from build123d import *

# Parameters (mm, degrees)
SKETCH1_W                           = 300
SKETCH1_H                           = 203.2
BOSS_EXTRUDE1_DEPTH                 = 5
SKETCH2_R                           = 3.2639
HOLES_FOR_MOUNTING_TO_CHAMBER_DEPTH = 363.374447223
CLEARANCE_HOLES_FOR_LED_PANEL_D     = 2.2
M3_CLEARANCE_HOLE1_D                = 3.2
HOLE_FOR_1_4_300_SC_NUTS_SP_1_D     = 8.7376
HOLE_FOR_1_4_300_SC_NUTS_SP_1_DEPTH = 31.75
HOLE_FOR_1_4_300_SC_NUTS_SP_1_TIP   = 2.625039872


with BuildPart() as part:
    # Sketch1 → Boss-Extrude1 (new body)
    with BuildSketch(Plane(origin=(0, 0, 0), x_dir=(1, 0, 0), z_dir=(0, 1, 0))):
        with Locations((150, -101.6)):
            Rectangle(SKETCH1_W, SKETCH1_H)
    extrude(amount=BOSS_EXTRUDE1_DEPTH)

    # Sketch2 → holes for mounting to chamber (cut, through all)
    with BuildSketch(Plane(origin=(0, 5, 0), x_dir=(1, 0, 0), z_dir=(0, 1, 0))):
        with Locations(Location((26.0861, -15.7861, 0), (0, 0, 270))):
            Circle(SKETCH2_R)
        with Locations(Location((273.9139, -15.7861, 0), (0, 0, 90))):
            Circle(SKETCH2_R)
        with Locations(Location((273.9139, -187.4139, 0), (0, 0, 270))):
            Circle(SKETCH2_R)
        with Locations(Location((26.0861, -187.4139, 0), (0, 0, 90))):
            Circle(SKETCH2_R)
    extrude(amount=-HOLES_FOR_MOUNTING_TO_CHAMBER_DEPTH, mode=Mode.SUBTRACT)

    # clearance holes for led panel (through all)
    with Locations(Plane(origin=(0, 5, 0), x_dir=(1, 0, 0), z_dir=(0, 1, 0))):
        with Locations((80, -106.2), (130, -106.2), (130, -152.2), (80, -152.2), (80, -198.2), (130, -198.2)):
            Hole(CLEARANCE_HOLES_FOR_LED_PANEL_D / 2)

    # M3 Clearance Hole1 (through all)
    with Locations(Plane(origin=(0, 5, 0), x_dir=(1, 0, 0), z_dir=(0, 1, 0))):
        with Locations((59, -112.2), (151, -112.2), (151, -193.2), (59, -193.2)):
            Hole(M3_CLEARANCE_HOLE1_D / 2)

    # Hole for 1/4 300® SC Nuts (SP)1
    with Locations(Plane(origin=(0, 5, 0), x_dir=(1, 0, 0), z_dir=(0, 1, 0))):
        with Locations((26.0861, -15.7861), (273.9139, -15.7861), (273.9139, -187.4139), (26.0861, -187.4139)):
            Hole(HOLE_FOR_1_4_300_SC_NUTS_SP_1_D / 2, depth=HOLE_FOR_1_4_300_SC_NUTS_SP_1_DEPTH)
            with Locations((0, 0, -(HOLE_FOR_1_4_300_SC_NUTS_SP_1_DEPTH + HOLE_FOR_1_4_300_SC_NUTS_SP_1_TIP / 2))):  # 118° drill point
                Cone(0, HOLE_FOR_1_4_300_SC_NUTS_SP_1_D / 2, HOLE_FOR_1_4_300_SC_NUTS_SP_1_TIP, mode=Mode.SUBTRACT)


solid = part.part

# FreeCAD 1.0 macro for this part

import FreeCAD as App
import Part
import Sketcher
from FreeCAD import Vector

doc = App.newDocument("Part")
body = doc.addObject("PartDesign::Body", "Body")

# Sketch on XZ plane
sketch1 = doc.addObject("Sketcher::SketchObject", "Sketch")
body.addObject(sketch1)
sketch1.AttachmentSupport = (doc.XZ_Plane, [""])
sketch1.MapMode = "FlatFace"
sketch1.addGeometry(Part.LineSegment(Vector(0, 0, 0), Vector(0, 203, 0)), False)
sketch1.addGeometry(Part.LineSegment(Vector(0, 203, 0), Vector(300, 203, 0)), False)
sketch1.addGeometry(Part.LineSegment(Vector(300, 203, 0), Vector(300, 0, 0)), False)
sketch1.addGeometry(Part.LineSegment(Vector(300, 0, 0), Vector(0, 0, 0)), False)
sketch1.addConstraint(Sketcher.Constraint("Coincident", 0, 2, 1, 1))
sketch1.addConstraint(Sketcher.Constraint("Coincident", 1, 2, 2, 1))
sketch1.addConstraint(Sketcher.Constraint("Coincident", 2, 2, 3, 1))
sketch1.addConstraint(Sketcher.Constraint("Coincident", 3, 2, 0, 1))
sketch1.addConstraint(Sketcher.Constraint("Vertical", 0))
sketch1.addConstraint(Sketcher.Constraint("Horizontal", 1))
sketch1.addConstraint(Sketcher.Constraint("Vertical", 2))
sketch1.addConstraint(Sketcher.Constraint("Horizontal", 3))
sketch1.addConstraint(Sketcher.Constraint("Coincident", 3, 2, -1, 1))
sketch1.addConstraint(Sketcher.Constraint("DistanceX", 1, 1, 1, 2, 300.0))
sketch1.addConstraint(Sketcher.Constraint("DistanceY", 0, 1, 0, 2, 203.2))
pad1 = doc.addObject("PartDesign::Pad", "Pad")
body.addObject(pad1)
pad1.Profile = sketch1
pad1.Length = 5
pad1.Reversed = True

# Sketch on XZ plane
sketch2 = doc.addObject("Sketcher::SketchObject", "Sketch001")
body.addObject(sketch2)
sketch2.AttachmentSupport = (doc.XZ_Plane, [""])
sketch2.MapMode = "FlatFace"
sketch2.AttachmentOffset = App.Placement(Vector(0, 0, -5), App.Rotation())
sketch2.addGeometry(Part.Circle(Vector(26.1, 15.8, 0), Vector(0, 0, 1), 3.3), False)
sketch2.addGeometry(Part.Circle(Vector(273.9, 15.8, 0), Vector(0, 0, 1), 3.3), False)
sketch2.addGeometry(Part.Circle(Vector(273.9, 187.4, 0), Vector(0, 0, 1), 3.3), False)
sketch2.addGeometry(Part.Circle(Vector(26.1, 187.4, 0), Vector(0, 0, 1), 3.3), False)
sketch2.addConstraint(Sketcher.Constraint("Equal", 0, 1))
sketch2.addConstraint(Sketcher.Constraint("Equal", 1, 2))
sketch2.addConstraint(Sketcher.Constraint("Equal", 2, 3))
sketch2.addConstraint(Sketcher.Constraint("Horizontal", 0, 3, 1, 3))
sketch2.addConstraint(Sketcher.Constraint("Horizontal", 2, 3, 3, 3))
sketch2.addConstraint(Sketcher.Constraint("Vertical", 1, 3, 2, 3))
sketch2.addConstraint(Sketcher.Constraint("Vertical", 0, 3, 3, 3))
sketch2.addConstraint(Sketcher.Constraint("Diameter", 0, 6.5278))
sketch2.addConstraint(Sketcher.Constraint("DistanceX", -1, 1, 0, 3, 26.0861))
sketch2.addConstraint(Sketcher.Constraint("DistanceY", -1, 1, 0, 3, 15.7861))
sketch2.addConstraint(Sketcher.Constraint("DistanceX", -1, 1, 1, 3, 273.9139))
sketch2.addConstraint(Sketcher.Constraint("DistanceY", -1, 1, 2, 3, 187.4139))
pocket1 = doc.addObject("PartDesign::Pocket", "Pocket")
body.addObject(pocket1)
pocket1.Profile = sketch2
pocket1.Type = "ThroughAll"
pocket1.Reversed = True

# Sketch on XZ plane
sketch3 = doc.addObject("Sketcher::SketchObject", "Sketch002")
body.addObject(sketch3)
sketch3.AttachmentSupport = (doc.XZ_Plane, [""])
sketch3.MapMode = "FlatFace"
sketch3.AttachmentOffset = App.Placement(Vector(0, 0, -5), App.Rotation())
sketch3.addGeometry(Part.Circle(Vector(80, 106.2, 0), Vector(0, 0, 1), 1.1), False)
sketch3.addGeometry(Part.Circle(Vector(130, 106.2, 0), Vector(0, 0, 1), 1.1), False)
sketch3.addGeometry(Part.Circle(Vector(130, 152.2, 0), Vector(0, 0, 1), 1.1), False)
sketch3.addGeometry(Part.Circle(Vector(80, 152.2, 0), Vector(0, 0, 1), 1.1), False)
sketch3.addGeometry(Part.Circle(Vector(80, 198.2, 0), Vector(0, 0, 1), 1.1), False)
sketch3.addGeometry(Part.Circle(Vector(130, 198.2, 0), Vector(0, 0, 1), 1.1), False)
sketch3.addConstraint(Sketcher.Constraint("Equal", 0, 1))
sketch3.addConstraint(Sketcher.Constraint("Equal", 1, 2))
sketch3.addConstraint(Sketcher.Constraint("Equal", 2, 3))
sketch3.addConstraint(Sketcher.Constraint("Equal", 3, 4))
sketch3.addConstraint(Sketcher.Constraint("Equal", 4, 5))
sketch3.addConstraint(Sketcher.Constraint("Horizontal", 0, 3, 1, 3))
sketch3.addConstraint(Sketcher.Constraint("Horizontal", 2, 3, 3, 3))
sketch3.addConstraint(Sketcher.Constraint("Horizontal", 4, 3, 5, 3))
sketch3.addConstraint(Sketcher.Constraint("Vertical", 1, 3, 2, 3))
sketch3.addConstraint(Sketcher.Constraint("Vertical", 0, 3, 3, 3))
sketch3.addConstraint(Sketcher.Constraint("Vertical", 3, 3, 4, 3))
sketch3.addConstraint(Sketcher.Constraint("Vertical", 2, 3, 5, 3))
sketch3.addConstraint(Sketcher.Constraint("Diameter", 0, 2.2))
sketch3.addConstraint(Sketcher.Constraint("DistanceX", -1, 1, 0, 3, 80.0))
sketch3.addConstraint(Sketcher.Constraint("DistanceX", -1, 1, 1, 3, 130.0))
sketch3.addConstraint(Sketcher.Constraint("DistanceY", 1, 3, 2, 3, 46.0))
sketch3.addConstraint(Sketcher.Constraint("DistanceY", 3, 3, 4, 3, 46.0))
sketch3.addConstraint(Sketcher.Constraint("DistanceY", -1, 1, 0, 3, 106.2))
doc.recompute()
hole = doc.addObject("PartDesign::Hole", "Hole")
body.addObject(hole)
hole.Profile = sketch3
hole.ThreadType = "None"
hole.Diameter = 2.2
hole.DepthType = "ThroughAll"
hole.Reversed = True

# Sketch on XZ plane
sketch4 = doc.addObject("Sketcher::SketchObject", "Sketch003")
body.addObject(sketch4)
sketch4.AttachmentSupport = (doc.XZ_Plane, [""])
sketch4.MapMode = "FlatFace"
sketch4.AttachmentOffset = App.Placement(Vector(0, 0, -5), App.Rotation())
sketch4.addGeometry(Part.Circle(Vector(59, 112.2, 0), Vector(0, 0, 1), 1.6), False)
sketch4.addGeometry(Part.Circle(Vector(151, 112.2, 0), Vector(0, 0, 1), 1.6), False)
sketch4.addGeometry(Part.Circle(Vector(151, 193.2, 0), Vector(0, 0, 1), 1.6), False)
sketch4.addGeometry(Part.Circle(Vector(59, 193.2, 0), Vector(0, 0, 1), 1.6), False)
sketch4.addConstraint(Sketcher.Constraint("Equal", 0, 1))
sketch4.addConstraint(Sketcher.Constraint("Equal", 1, 2))
sketch4.addConstraint(Sketcher.Constraint("Equal", 2, 3))
sketch4.addConstraint(Sketcher.Constraint("Horizontal", 0, 3, 1, 3))
sketch4.addConstraint(Sketcher.Constraint("Horizontal", 2, 3, 3, 3))
sketch4.addConstraint(Sketcher.Constraint("Vertical", 1, 3, 2, 3))
sketch4.addConstraint(Sketcher.Constraint("Vertical", 0, 3, 3, 3))
sketch4.addConstraint(Sketcher.Constraint("Diameter", 0, 3.2))
sketch4.addConstraint(Sketcher.Constraint("DistanceX", -1, 1, 0, 3, 59.0))
sketch4.addConstraint(Sketcher.Constraint("DistanceX", -1, 1, 1, 3, 151.0))
sketch4.addConstraint(Sketcher.Constraint("DistanceY", 1, 3, 2, 3, 81.0))
sketch4.addConstraint(Sketcher.Constraint("DistanceY", -1, 1, 0, 3, 112.2))
doc.recompute()
hole2 = doc.addObject("PartDesign::Hole", "Hole001")
body.addObject(hole2)
hole2.Profile = sketch4
hole2.ThreadType = "None"
hole2.Diameter = 3.2
hole2.DepthType = "ThroughAll"
hole2.Reversed = True

# Sketch on XZ plane
sketch5 = doc.addObject("Sketcher::SketchObject", "Sketch004")
body.addObject(sketch5)
sketch5.AttachmentSupport = (doc.XZ_Plane, [""])
sketch5.MapMode = "FlatFace"
sketch5.AttachmentOffset = App.Placement(Vector(0, 0, -5), App.Rotation())
sketch5.addGeometry(Part.Circle(Vector(26.1, 15.8, 0), Vector(0, 0, 1), 4.4), False)
sketch5.addGeometry(Part.Circle(Vector(273.9, 15.8, 0), Vector(0, 0, 1), 4.4), False)
sketch5.addGeometry(Part.Circle(Vector(273.9, 187.4, 0), Vector(0, 0, 1), 4.4), False)
sketch5.addGeometry(Part.Circle(Vector(26.1, 187.4, 0), Vector(0, 0, 1), 4.4), False)
sketch5.addConstraint(Sketcher.Constraint("Equal", 0, 1))
sketch5.addConstraint(Sketcher.Constraint("Equal", 1, 2))
sketch5.addConstraint(Sketcher.Constraint("Equal", 2, 3))
sketch5.addConstraint(Sketcher.Constraint("Horizontal", 0, 3, 1, 3))
sketch5.addConstraint(Sketcher.Constraint("Horizontal", 2, 3, 3, 3))
sketch5.addConstraint(Sketcher.Constraint("Vertical", 1, 3, 2, 3))
sketch5.addConstraint(Sketcher.Constraint("Vertical", 0, 3, 3, 3))
sketch5.addConstraint(Sketcher.Constraint("Diameter", 0, 8.7376))
sketch5.addConstraint(Sketcher.Constraint("DistanceX", -1, 1, 0, 3, 26.0861))
sketch5.addConstraint(Sketcher.Constraint("DistanceY", -1, 1, 0, 3, 15.7861))
sketch5.addConstraint(Sketcher.Constraint("DistanceX", -1, 1, 1, 3, 273.9139))
sketch5.addConstraint(Sketcher.Constraint("DistanceY", -1, 1, 2, 3, 187.4139))
doc.recompute()
hole3 = doc.addObject("PartDesign::Hole", "Hole002")
body.addObject(hole3)
hole3.Profile = sketch5
hole3.ThreadType = "None"
hole3.Diameter = 8.7376
hole3.DepthType = "Dimension"
hole3.Depth = 31.75
hole3.DrillPoint = "Angled"
hole3.DrillPointAngle = 118
hole3.Reversed = True

doc.recompute()
